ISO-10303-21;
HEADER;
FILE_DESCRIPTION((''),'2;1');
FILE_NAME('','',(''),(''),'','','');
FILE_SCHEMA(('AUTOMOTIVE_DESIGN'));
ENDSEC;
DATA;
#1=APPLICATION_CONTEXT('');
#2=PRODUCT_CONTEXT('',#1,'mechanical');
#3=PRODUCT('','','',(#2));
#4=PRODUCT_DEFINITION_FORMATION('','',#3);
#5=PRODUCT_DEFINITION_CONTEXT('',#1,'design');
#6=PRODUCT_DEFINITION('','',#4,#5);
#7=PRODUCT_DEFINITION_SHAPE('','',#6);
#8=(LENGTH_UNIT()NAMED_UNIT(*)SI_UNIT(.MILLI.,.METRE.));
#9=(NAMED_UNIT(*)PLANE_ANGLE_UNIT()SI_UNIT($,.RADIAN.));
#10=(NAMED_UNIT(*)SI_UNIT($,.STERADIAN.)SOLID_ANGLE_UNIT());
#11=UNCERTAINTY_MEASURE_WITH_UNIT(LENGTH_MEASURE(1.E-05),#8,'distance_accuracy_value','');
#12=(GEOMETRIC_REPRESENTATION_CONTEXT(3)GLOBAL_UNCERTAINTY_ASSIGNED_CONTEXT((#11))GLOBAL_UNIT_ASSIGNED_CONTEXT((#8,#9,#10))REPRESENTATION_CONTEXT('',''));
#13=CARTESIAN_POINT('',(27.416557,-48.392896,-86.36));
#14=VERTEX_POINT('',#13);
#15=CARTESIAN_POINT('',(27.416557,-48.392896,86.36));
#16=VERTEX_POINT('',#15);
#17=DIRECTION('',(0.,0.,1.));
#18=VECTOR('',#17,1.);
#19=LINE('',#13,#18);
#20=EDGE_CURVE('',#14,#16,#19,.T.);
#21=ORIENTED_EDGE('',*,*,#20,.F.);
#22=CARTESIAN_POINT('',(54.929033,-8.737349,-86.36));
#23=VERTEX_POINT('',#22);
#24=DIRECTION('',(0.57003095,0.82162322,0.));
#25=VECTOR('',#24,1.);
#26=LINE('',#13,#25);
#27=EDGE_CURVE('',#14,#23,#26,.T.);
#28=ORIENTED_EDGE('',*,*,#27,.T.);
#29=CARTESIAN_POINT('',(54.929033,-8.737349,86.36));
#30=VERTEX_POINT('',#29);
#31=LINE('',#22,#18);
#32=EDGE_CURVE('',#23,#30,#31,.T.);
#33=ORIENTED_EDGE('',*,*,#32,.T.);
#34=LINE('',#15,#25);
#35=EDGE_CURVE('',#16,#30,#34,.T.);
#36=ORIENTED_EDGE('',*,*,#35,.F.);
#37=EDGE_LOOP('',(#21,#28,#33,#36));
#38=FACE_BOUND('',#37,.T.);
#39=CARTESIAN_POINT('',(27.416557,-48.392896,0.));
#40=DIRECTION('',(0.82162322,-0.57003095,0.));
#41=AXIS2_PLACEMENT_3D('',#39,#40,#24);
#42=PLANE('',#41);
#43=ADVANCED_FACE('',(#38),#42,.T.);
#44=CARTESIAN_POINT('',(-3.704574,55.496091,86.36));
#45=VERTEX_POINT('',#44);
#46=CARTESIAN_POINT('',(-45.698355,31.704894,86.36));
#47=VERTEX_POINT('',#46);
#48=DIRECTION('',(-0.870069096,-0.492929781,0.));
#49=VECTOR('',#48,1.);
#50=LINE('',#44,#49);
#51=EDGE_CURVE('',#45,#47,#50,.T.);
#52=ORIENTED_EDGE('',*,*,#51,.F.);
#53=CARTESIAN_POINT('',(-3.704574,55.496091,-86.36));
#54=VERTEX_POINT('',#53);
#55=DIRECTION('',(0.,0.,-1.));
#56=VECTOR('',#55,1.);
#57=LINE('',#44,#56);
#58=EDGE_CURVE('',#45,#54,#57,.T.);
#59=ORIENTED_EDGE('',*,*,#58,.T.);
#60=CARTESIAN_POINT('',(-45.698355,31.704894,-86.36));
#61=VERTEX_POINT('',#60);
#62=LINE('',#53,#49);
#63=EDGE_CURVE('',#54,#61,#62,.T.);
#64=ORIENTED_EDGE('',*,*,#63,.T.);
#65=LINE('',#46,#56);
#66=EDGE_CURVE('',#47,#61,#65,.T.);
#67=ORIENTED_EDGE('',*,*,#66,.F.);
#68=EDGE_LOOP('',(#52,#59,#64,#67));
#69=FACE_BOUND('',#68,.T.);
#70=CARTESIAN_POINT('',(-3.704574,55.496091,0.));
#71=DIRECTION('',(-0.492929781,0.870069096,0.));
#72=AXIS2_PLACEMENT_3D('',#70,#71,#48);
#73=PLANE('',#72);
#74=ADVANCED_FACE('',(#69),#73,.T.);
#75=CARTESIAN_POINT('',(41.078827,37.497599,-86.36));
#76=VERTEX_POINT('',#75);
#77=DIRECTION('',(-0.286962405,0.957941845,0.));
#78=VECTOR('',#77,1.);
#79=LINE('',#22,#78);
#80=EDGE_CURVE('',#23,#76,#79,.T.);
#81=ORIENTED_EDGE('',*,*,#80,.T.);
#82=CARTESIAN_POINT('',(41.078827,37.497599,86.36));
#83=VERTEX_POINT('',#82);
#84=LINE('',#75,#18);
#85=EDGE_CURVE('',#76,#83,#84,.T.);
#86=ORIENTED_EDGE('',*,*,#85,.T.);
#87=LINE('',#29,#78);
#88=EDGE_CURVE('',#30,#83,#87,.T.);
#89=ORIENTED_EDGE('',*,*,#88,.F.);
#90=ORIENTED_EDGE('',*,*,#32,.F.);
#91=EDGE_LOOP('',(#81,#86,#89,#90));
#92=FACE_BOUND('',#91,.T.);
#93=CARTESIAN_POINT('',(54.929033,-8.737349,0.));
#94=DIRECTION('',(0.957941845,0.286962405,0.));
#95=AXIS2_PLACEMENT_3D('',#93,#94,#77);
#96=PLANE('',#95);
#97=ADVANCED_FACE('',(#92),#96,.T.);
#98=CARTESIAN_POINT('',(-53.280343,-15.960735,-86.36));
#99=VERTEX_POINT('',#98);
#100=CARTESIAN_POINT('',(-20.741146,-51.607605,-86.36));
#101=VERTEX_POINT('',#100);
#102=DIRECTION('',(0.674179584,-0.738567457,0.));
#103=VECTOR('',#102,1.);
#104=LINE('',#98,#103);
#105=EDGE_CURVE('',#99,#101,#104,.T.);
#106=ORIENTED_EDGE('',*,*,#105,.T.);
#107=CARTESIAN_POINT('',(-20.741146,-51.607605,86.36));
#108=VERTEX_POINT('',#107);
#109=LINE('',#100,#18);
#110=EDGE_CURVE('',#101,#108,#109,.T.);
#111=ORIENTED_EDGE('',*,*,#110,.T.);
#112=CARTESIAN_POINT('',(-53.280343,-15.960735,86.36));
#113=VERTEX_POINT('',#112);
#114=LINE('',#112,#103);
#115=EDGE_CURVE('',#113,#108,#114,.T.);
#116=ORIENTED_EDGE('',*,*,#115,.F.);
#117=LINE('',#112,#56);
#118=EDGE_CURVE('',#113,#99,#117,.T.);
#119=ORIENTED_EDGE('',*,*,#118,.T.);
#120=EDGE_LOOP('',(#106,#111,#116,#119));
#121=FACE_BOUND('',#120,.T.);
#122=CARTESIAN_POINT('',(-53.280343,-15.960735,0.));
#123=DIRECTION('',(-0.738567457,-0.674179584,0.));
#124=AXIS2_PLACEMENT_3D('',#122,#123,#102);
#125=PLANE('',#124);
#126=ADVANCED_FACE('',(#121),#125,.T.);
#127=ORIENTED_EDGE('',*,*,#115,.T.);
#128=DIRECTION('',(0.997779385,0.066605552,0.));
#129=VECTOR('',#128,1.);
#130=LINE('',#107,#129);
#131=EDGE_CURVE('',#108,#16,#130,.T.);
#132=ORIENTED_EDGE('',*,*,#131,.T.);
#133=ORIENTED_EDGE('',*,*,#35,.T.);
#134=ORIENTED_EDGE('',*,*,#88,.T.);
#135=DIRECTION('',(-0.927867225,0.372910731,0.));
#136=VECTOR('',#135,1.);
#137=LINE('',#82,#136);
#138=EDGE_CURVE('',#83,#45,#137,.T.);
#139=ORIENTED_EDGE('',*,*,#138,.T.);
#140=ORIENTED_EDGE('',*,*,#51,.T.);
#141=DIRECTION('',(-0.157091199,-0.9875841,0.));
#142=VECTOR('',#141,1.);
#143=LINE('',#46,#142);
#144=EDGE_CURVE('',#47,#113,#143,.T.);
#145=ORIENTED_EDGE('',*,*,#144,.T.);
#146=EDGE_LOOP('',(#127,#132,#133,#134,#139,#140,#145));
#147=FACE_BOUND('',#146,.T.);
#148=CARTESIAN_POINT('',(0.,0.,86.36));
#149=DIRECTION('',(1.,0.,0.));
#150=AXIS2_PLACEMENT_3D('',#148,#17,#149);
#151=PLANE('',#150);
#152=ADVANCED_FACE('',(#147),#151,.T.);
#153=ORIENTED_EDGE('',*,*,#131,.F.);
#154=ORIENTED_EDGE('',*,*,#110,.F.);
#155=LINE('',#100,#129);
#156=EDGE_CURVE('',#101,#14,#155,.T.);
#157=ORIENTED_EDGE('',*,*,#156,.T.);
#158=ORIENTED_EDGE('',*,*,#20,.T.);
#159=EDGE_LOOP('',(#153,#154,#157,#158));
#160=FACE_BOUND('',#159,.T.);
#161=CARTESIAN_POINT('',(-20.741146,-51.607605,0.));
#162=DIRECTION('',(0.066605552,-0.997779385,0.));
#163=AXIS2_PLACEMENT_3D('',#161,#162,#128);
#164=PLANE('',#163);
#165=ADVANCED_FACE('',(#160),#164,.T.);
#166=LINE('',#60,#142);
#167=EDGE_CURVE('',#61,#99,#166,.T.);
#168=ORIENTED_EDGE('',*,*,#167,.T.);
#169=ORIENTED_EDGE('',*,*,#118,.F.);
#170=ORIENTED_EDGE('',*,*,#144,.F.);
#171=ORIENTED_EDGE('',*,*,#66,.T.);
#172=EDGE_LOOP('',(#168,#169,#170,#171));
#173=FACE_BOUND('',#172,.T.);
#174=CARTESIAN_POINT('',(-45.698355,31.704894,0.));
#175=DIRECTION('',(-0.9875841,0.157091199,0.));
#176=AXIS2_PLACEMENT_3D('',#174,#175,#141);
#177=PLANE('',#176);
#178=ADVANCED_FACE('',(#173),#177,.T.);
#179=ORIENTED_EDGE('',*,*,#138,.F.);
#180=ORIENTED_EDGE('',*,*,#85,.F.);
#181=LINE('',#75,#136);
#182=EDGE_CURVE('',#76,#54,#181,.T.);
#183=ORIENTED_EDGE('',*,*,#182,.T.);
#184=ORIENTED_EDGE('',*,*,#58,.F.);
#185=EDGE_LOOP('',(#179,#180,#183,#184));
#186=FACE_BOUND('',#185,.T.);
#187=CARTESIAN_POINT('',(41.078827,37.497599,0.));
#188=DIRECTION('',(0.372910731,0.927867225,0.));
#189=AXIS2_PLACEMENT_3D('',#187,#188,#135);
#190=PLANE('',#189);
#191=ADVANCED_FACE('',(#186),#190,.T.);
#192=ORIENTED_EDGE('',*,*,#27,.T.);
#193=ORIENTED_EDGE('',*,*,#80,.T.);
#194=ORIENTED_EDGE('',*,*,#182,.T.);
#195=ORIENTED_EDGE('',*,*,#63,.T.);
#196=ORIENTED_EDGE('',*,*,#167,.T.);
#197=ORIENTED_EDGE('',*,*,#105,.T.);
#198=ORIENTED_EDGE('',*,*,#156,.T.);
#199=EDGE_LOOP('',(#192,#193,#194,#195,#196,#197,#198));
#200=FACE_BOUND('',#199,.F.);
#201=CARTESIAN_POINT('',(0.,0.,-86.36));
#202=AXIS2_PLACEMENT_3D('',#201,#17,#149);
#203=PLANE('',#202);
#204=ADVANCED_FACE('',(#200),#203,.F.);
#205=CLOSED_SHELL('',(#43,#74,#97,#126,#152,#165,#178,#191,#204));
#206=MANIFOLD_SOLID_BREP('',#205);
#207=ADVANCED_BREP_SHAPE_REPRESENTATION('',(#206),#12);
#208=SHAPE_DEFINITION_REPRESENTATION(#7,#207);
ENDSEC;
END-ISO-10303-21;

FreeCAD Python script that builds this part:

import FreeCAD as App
import Part
import Sketcher

V = App.Vector
Q = App.Units.Quantity


def add_polygon(sketch, points):
    """Adds a closed chain of lines whose ends are joined by coincident constraints."""
    first, n = sketch.GeometryCount, len(points)
    for a, b in zip(points, points[1:] + points[:1]):
        sketch.addGeometry(Part.LineSegment(App.Vector(*a, 0), App.Vector(*b, 0)), False)
    for i in range(n):
        sketch.addConstraint(Sketcher.Constraint("Coincident", first + i, 2, first + (i + 1) % n, 1))

doc = App.newDocument("Part")
params = doc.addObject("Spreadsheet::Sheet", "Params")
for row, (alias, value) in enumerate([
    ("pad1_length", "6.8 in"),
], start=1):
    params.set(f"A{row}", alias)
    params.set(f"B{row}", "=" + value)
    params.setAlias(f"B{row}", alias)

body = doc.addObject("PartDesign::Body", "Body")

# Sketch on XY plane
sketch1 = body.newObject("Sketcher::SketchObject", "Sketch")
sketch1.AttachmentSupport = (doc.getObject("XY_Plane"), [""])
sketch1.MapMode = "FlatFace"
add_polygon(sketch1, [(-53.280343, -15.960735), (-20.741146, -51.607605), (27.416557, -48.392896), (54.929033, -8.737349), (41.078827, 37.497599), (-3.704574, 55.496091), (-45.698355, 31.704894)])  # lines 0-6
sketch1.addConstraint(Sketcher.Constraint("DistanceY", -1, 1, 3, 2, Q("37.497599 mm")))
sketch1.addConstraint(Sketcher.Constraint("DistanceX", 4, 2, 3, 2, Q("44.783401 mm")))
sketch1.addConstraint(Sketcher.Constraint("DistanceY", 0, 2, 5, 2, Q("83.312499 mm")))
sketch1.addConstraint(Sketcher.Constraint("DistanceX", 6, 2, 1, 2, Q("80.6969 mm")))
sketch1.addConstraint(Sketcher.Constraint("Distance", 0, Q("48.26488 mm")))
sketch1.addConstraint(Sketcher.Constraint("Distance", 1, Q("48.264881 mm")))
sketch1.addConstraint(Sketcher.Constraint("Distance", 2, Q("48.264881 mm")))
sketch1.addConstraint(Sketcher.Constraint("Distance", 3, Q("48.26488 mm")))
sketch1.addConstraint(Sketcher.Constraint("Distance", 4, Q("48.264881 mm")))
sketch1.addConstraint(Sketcher.Constraint("Distance", 5, Q("48.264881 mm")))
sketch1.addConstraint(Sketcher.Constraint("Distance", 6, Q("48.264881 mm")))
sketch1.addConstraint(Sketcher.Constraint("DistanceY", 2, 2, -1, 1, Q("8.737349 mm")))
sketch1.addConstraint(Sketcher.Constraint("DistanceY", 0, 2, 1, 2, Q("3.214709 mm")))
sketch1.addConstraint(Sketcher.Constraint("DistanceX", 0, 2, -1, 1, Q("20.741146 mm")))
pad1 = body.newObject("PartDesign::Pad", "Pad")
pad1.Profile = sketch1
pad1.setExpression("Length", "Params.pad1_length")
pad1.Midplane = True

doc.recompute()
